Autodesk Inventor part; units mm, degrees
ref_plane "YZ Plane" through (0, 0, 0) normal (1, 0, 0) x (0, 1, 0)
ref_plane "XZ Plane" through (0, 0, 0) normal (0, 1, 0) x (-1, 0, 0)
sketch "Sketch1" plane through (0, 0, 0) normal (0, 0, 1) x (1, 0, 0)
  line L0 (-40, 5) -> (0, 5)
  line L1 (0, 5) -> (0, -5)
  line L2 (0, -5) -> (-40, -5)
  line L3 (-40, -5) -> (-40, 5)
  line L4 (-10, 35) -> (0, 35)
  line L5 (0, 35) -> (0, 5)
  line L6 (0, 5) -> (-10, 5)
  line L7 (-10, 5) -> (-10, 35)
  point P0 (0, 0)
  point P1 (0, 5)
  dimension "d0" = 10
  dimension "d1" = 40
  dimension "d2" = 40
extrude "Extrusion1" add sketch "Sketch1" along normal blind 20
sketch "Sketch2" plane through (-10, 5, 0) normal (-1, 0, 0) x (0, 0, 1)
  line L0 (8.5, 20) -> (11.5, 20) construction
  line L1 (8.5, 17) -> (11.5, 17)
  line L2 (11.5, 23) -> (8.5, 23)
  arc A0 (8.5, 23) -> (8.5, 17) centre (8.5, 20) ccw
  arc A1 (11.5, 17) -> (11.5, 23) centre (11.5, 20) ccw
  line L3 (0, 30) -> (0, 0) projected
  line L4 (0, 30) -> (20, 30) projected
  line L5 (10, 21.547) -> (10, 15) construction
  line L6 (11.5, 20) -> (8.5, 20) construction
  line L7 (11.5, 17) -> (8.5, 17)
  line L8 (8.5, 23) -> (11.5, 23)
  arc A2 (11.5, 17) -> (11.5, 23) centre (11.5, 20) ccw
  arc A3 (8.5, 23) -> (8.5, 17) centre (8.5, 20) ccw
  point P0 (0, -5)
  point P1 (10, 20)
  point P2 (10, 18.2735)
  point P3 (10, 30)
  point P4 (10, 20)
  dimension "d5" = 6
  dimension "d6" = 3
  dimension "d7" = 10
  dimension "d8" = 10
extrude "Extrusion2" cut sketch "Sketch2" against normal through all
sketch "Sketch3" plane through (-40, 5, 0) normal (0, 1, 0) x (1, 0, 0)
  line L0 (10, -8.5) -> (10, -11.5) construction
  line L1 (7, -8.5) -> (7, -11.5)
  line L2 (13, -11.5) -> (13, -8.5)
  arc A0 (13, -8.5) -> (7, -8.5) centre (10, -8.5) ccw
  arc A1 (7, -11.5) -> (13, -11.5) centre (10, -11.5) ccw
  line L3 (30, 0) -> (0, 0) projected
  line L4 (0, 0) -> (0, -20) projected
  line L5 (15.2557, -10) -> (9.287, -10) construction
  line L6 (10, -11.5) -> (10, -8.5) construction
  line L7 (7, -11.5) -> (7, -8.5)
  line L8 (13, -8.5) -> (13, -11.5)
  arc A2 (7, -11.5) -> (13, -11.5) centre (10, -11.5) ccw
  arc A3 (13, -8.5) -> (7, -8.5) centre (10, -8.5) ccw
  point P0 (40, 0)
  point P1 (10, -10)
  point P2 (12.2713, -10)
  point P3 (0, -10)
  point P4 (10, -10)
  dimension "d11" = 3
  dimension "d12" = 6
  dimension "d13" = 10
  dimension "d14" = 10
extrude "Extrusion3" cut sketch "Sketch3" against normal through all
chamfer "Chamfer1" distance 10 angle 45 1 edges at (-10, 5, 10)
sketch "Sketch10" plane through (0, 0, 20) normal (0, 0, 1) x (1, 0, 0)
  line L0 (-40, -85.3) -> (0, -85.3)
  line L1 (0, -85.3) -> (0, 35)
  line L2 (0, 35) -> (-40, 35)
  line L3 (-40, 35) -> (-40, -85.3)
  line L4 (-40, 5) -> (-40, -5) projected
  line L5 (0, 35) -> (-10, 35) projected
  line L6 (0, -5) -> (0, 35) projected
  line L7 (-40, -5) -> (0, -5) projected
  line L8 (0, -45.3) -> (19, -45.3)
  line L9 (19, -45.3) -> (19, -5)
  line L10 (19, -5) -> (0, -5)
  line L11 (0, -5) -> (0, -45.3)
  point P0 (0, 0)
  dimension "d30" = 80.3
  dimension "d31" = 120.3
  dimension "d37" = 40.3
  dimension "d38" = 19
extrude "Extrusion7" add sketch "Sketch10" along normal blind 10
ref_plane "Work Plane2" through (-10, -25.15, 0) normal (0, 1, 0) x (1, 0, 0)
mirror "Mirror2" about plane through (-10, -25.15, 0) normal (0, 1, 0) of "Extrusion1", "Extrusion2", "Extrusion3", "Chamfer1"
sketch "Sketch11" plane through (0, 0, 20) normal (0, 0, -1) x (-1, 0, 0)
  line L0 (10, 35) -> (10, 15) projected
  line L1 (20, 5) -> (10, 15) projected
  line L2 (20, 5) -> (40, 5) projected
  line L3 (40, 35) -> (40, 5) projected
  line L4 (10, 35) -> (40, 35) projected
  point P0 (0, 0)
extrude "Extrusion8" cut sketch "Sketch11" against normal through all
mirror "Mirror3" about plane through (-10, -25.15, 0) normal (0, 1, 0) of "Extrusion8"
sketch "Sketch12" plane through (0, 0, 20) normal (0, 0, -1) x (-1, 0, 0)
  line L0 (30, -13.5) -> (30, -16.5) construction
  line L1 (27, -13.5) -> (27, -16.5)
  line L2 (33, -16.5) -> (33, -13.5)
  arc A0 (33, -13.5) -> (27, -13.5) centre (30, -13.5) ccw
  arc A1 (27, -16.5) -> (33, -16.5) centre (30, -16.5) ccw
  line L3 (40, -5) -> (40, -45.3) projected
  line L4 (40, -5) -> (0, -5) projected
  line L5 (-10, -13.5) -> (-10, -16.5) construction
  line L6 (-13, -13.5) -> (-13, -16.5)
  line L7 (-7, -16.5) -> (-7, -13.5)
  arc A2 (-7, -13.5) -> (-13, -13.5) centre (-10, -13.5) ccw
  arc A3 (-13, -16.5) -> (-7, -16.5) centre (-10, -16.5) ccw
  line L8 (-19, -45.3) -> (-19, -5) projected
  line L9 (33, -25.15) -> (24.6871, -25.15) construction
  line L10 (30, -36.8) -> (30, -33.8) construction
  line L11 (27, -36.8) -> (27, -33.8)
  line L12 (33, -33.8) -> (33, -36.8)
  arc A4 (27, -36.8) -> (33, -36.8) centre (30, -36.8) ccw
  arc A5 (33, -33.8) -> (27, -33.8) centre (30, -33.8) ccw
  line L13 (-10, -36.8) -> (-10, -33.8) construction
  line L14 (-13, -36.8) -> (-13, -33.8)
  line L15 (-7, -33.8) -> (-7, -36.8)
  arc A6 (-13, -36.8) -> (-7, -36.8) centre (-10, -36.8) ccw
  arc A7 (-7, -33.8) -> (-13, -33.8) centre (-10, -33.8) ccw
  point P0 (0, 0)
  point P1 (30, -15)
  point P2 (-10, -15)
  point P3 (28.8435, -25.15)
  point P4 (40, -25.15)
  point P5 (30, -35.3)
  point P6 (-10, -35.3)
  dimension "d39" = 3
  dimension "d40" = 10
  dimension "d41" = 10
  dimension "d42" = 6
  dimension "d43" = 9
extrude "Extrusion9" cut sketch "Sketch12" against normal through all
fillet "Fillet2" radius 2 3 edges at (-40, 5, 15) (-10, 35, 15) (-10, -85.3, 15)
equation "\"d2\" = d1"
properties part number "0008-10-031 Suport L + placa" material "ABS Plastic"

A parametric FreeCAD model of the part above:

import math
import FreeCAD as App
import Part
import Sketcher


def edges_at(feature, points):
    """Names of the edges that pass closest to the given points."""
    edges = feature.Shape.Edges
    near = lambda p: min(range(len(edges)), key=lambda i: edges[i].distToShape(Part.Vertex(*p))[0])
    return sorted({f"Edge{near(p) + 1}" for p in points})


def add_polygon(sketch, points):
    """Adds a closed chain of lines whose ends are joined by coincident constraints."""
    first, n = sketch.GeometryCount, len(points)
    for a, b in zip(points, points[1:] + points[:1]):
        sketch.addGeometry(Part.LineSegment(App.Vector(*a, 0), App.Vector(*b, 0)), False)
    for i in range(n):
        sketch.addConstraint(Sketcher.Constraint("Coincident", first + i, 2, first + (i + 1) % n, 1))

doc = App.newDocument("Part")
body = doc.addObject("PartDesign::Body", "Body")

sketch1 = doc.addObject("Sketcher::SketchObject", "Sketch")
body.addObject(sketch1)
sketch1.AttachmentSupport = (doc.XY_Plane, [""])
sketch1.MapMode = "FlatFace"
add_polygon(sketch1, [(-10, 5), (-40, 5), (-40, -5), (0, -5), (0, 35), (-10, 35)])
sketch1.addConstraint(Sketcher.Constraint("Horizontal", 0))
sketch1.addConstraint(Sketcher.Constraint("Vertical", 1))
sketch1.addConstraint(Sketcher.Constraint("Horizontal", 2))
sketch1.addConstraint(Sketcher.Constraint("Vertical", 3))
sketch1.addConstraint(Sketcher.Constraint("Horizontal", 4))
sketch1.addConstraint(Sketcher.Constraint("Vertical", 5))
sketch1.addConstraint(Sketcher.Constraint("PointOnObject", 2, 2, -2))
sketch1.addConstraint(Sketcher.Constraint("Equal", 4, 1))
sketch1.addConstraint(Sketcher.Constraint("Equal", 2, 3))
sketch1.addConstraint(Sketcher.Constraint("DistanceX", 2, 1, 2, 2, 40.0))
sketch1.addConstraint(Sketcher.Constraint("DistanceX", 4, 2, 4, 1, 10.0))
sketch1.addConstraint(Sketcher.Constraint("DistanceY", -1, 1, 0, 2, 5.0))
pad1 = doc.addObject("PartDesign::Pad", "Pad")
body.addObject(pad1)
pad1.Profile = sketch1
pad1.Length = 20

sketch2 = doc.addObject("Sketcher::SketchObject", "Sketch001")
body.addObject(sketch2)
sketch2.AttachmentSupport = (doc.YZ_Plane, [""])
sketch2.MapMode = "FlatFace"
sketch2.AttachmentOffset = App.Placement(App.Vector(0, 0, -10), App.Rotation())
sketch2.addGeometry(Part.ArcOfCircle(Part.Circle(App.Vector(25, 8.5, 0), App.Vector(0, 0, 1), 3), math.radians(180), math.radians(360)), False)
sketch2.addGeometry(Part.LineSegment(App.Vector(22, 8.5, 0), App.Vector(22, 11.5, 0)), False)
sketch2.addGeometry(Part.ArcOfCircle(Part.Circle(App.Vector(25, 11.5, 0), App.Vector(0, 0, 1), 3), math.radians(0), math.radians(180)), False)
sketch2.addGeometry(Part.LineSegment(App.Vector(28, 11.5, 0), App.Vector(28, 8.5, 0)), False)
sketch2.addConstraint(Sketcher.Constraint("Tangent", 0, 1, 1, 1))
sketch2.addConstraint(Sketcher.Constraint("Tangent", 1, 2, 2, 2))
sketch2.addConstraint(Sketcher.Constraint("Tangent", 2, 1, 3, 1))
sketch2.addConstraint(Sketcher.Constraint("Tangent", 3, 2, 0, 2))
sketch2.addConstraint(Sketcher.Constraint("Vertical", 1))
sketch2.addConstraint(Sketcher.Constraint("Vertical", 3))
sketch2.addConstraint(Sketcher.Constraint("Radius", 0, 3.0))
sketch2.addConstraint(Sketcher.Constraint("DistanceY", 1, 1, 1, 2, 3.0))
sketch2.addConstraint(Sketcher.Constraint("DistanceX", -1, 1, 0, 3, 25.0))
sketch2.addConstraint(Sketcher.Constraint("DistanceY", -1, 1, 0, 3, 8.5))
pocket1 = doc.addObject("PartDesign::Pocket", "Pocket")
body.addObject(pocket1)
pocket1.Profile = sketch2
pocket1.Type = "ThroughAll"
pocket1.Reversed = True

sketch3 = doc.addObject("Sketcher::SketchObject", "Sketch002")
body.addObject(sketch3)
sketch3.AttachmentSupport = (doc.XZ_Plane, [""])
sketch3.MapMode = "FlatFace"
sketch3.AttachmentOffset = App.Placement(App.Vector(0, 0, -5), App.Rotation())
sketch3.addGeometry(Part.ArcOfCircle(Part.Circle(App.Vector(-30, 8.5, 0), App.Vector(0, 0, 1), 3), math.radians(180), math.radians(360)), False)
sketch3.addGeometry(Part.LineSegment(App.Vector(-33, 8.5, 0), App.Vector(-33, 11.5, 0)), False)
sketch3.addGeometry(Part.ArcOfCircle(Part.Circle(App.Vector(-30, 11.5, 0), App.Vector(0, 0, 1), 3), math.radians(0), math.radians(180)), False)
sketch3.addGeometry(Part.LineSegment(App.Vector(-27, 11.5, 0), App.Vector(-27, 8.5, 0)), False)
sketch3.addConstraint(Sketcher.Constraint("Tangent", 0, 1, 1, 1))
sketch3.addConstraint(Sketcher.Constraint("Tangent", 1, 2, 2, 2))
sketch3.addConstraint(Sketcher.Constraint("Tangent", 2, 1, 3, 1))
sketch3.addConstraint(Sketcher.Constraint("Tangent", 3, 2, 0, 2))
sketch3.addConstraint(Sketcher.Constraint("Vertical", 1))
sketch3.addConstraint(Sketcher.Constraint("Vertical", 3))
sketch3.addConstraint(Sketcher.Constraint("Radius", 0, 3.0))
sketch3.addConstraint(Sketcher.Constraint("DistanceY", 1, 1, 1, 2, 3.0))
sketch3.addConstraint(Sketcher.Constraint("DistanceX", 0, 3, -1, 1, 30.0))
sketch3.addConstraint(Sketcher.Constraint("DistanceY", -1, 1, 0, 3, 8.5))
pocket2 = doc.addObject("PartDesign::Pocket", "Pocket001")
body.addObject(pocket2)
pocket2.Profile = sketch3
pocket2.Type = "ThroughAll"
pocket2.Reversed = True
doc.recompute()

chamfer = doc.addObject("PartDesign::Chamfer", "Chamfer")
body.addObject(chamfer)
chamfer.Base = (pocket2, edges_at(pocket2, [(-10, 5, 10)]))
chamfer.Size = 10

sketch4 = doc.addObject("Sketcher::SketchObject", "Sketch003")
body.addObject(sketch4)
sketch4.AttachmentSupport = (doc.XY_Plane, [""])
sketch4.MapMode = "FlatFace"
sketch4.AttachmentOffset = App.Placement(App.Vector(0, 0, 20), App.Rotation())
add_polygon(sketch4, [(-40, -85), (0, -85), (0, -45), (19, -45), (19, -5), (0, -5), (0, 35), (-40, 35)])
sketch4.addConstraint(Sketcher.Constraint("Horizontal", 0))
sketch4.addConstraint(Sketcher.Constraint("Vertical", 1))
sketch4.addConstraint(Sketcher.Constraint("Horizontal", 2))
sketch4.addConstraint(Sketcher.Constraint("Vertical", 3))
sketch4.addConstraint(Sketcher.Constraint("Horizontal", 4))
sketch4.addConstraint(Sketcher.Constraint("Vertical", 5))
sketch4.addConstraint(Sketcher.Constraint("Horizontal", 6))
sketch4.addConstraint(Sketcher.Constraint("Vertical", 7))
sketch4.addConstraint(Sketcher.Constraint("PointOnObject", 0, 2, -2))
sketch4.addConstraint(Sketcher.Constraint("PointOnObject", 4, 2, -2))
sketch4.addConstraint(Sketcher.Constraint("Equal", 6, 1))
sketch4.addConstraint(Sketcher.Constraint("Equal", 1, 5))
sketch4.addConstraint(Sketcher.Constraint("DistanceX", 2, 1, 2, 2, 19.0))
sketch4.addConstraint(Sketcher.Constraint("DistanceY", 3, 1, 3, 2, 40.3))
sketch4.addConstraint(Sketcher.Constraint("DistanceY", 7, 2, 7, 1, 120.3))
sketch4.addConstraint(Sketcher.Constraint("DistanceY", 3, 2, -1, 1, 5.0))
pad2 = doc.addObject("PartDesign::Pad", "Pad001")
body.addObject(pad2)
pad2.Profile = sketch4
pad2.Length = 10
doc.recompute()

datumplane = doc.addObject("PartDesign::Plane", "DatumPlane")
body.addObject(datumplane)
datumplane.AttachmentSupport = (doc.XZ_Plane, [""])
datumplane.MapMode = "FlatFace"
datumplane.AttachmentOffset = App.Placement(App.Vector(0, 0, 25.15), App.Rotation())
mirrored = doc.addObject("PartDesign::Mirrored", "Mirrored")
body.addObject(mirrored)
mirrored.Originals = [pad1, pocket1, pocket2, chamfer]
mirrored.MirrorPlane = (datumplane, [""])
body.Tip = mirrored

sketch5 = doc.addObject("Sketcher::SketchObject", "Sketch004")
body.addObject(sketch5)
sketch5.AttachmentSupport = (doc.XY_Plane, [""])
sketch5.MapMode = "FlatFace"
sketch5.AttachmentOffset = App.Placement(App.Vector(0, 0, 20), App.Rotation())
add_polygon(sketch5, [(-40, 35), (-10, 35), (-10, 15), (-20, 5), (-40, 5)])
sketch5.addConstraint(Sketcher.Constraint("Horizontal", 0))
sketch5.addConstraint(Sketcher.Constraint("Vertical", 1))
sketch5.addConstraint(Sketcher.Constraint("Horizontal", 3))
sketch5.addConstraint(Sketcher.Constraint("Vertical", 4))
sketch5.addConstraint(Sketcher.Constraint("Equal", 3, 1))
sketch5.addConstraint(Sketcher.Constraint("Equal", 0, 4))
sketch5.addConstraint(Sketcher.Constraint("DistanceX", 0, 1, 0, 2, 30.0))
sketch5.addConstraint(Sketcher.Constraint("DistanceX", 3, 2, 3, 1, 20.0))
sketch5.addConstraint(Sketcher.Constraint("DistanceX", 0, 2, -1, 1, 10.0))
sketch5.addConstraint(Sketcher.Constraint("DistanceY", -1, 1, 0, 2, 35.0))
pocket3 = doc.addObject("PartDesign::Pocket", "Pocket002")
body.addObject(pocket3)
pocket3.Profile = sketch5
pocket3.Type = "ThroughAll"
pocket3.Reversed = True
doc.recompute()

datumplane2 = doc.addObject("PartDesign::Plane", "DatumPlane001")
body.addObject(datumplane2)
datumplane2.AttachmentSupport = (doc.XZ_Plane, [""])
datumplane2.MapMode = "FlatFace"
datumplane2.AttachmentOffset = App.Placement(App.Vector(0, 0, 25.15), App.Rotation())
mirrored2 = doc.addObject("PartDesign::Mirrored", "Mirrored001")
body.addObject(mirrored2)
mirrored2.Originals = [pocket3]
mirrored2.MirrorPlane = (datumplane2, [""])
body.Tip = mirrored2

sketch6 = doc.addObject("Sketcher::SketchObject", "Sketch005")
body.addObject(sketch6)
sketch6.AttachmentSupport = (doc.XY_Plane, [""])
sketch6.MapMode = "FlatFace"
sketch6.AttachmentOffset = App.Placement(App.Vector(0, 0, 20), App.Rotation())
sketch6.addGeometry(Part.ArcOfCircle(Part.Circle(App.Vector(-30, -13.5, 0), App.Vector(0, 0, 1), 3), math.radians(0), math.radians(180)), False)
sketch6.addGeometry(Part.LineSegment(App.Vector(-27, -13.5, 0), App.Vector(-27, -16.5, 0)), False)
sketch6.addGeometry(Part.ArcOfCircle(Part.Circle(App.Vector(-30, -16.5, 0), App.Vector(0, 0, 1), 3), math.radians(180), math.radians(360)), False)
sketch6.addGeometry(Part.LineSegment(App.Vector(-33, -16.5, 0), App.Vector(-33, -13.5, 0)), False)
sketch6.addGeometry(Part.ArcOfCircle(Part.Circle(App.Vector(10, -13.5, 0), App.Vector(0, 0, 1), 3), math.radians(0), math.radians(180)), False)
sketch6.addGeometry(Part.LineSegment(App.Vector(13, -13.5, 0), App.Vector(13, -16.5, 0)), False)
sketch6.addGeometry(Part.ArcOfCircle(Part.Circle(App.Vector(10, -16.5, 0), App.Vector(0, 0, 1), 3), math.radians(180), math.radians(360)), False)
sketch6.addGeometry(Part.LineSegment(App.Vector(7, -16.5, 0), App.Vector(7, -13.5, 0)), False)
sketch6.addGeometry(Part.LineSegment(App.Vector(-27, -33.8, 0), App.Vector(-27, -36.8, 0)), False)
sketch6.addGeometry(Part.ArcOfCircle(Part.Circle(App.Vector(-30, -36.8, 0), App.Vector(0, 0, 1), 3), math.radians(180), math.radians(360)), False)
sketch6.addGeometry(Part.LineSegment(App.Vector(-33, -36.8, 0), App.Vector(-33, -33.8, 0)), False)
sketch6.addGeometry(Part.ArcOfCircle(Part.Circle(App.Vector(-30, -33.8, 0), App.Vector(0, 0, 1), 3), math.radians(0), math.radians(180)), False)
sketch6.addGeometry(Part.LineSegment(App.Vector(13, -33.8, 0), App.Vector(13, -36.8, 0)), False)
sketch6.addGeometry(Part.ArcOfCircle(Part.Circle(App.Vector(10, -36.8, 0), App.Vector(0, 0, 1), 3), math.radians(180), math.radians(360)), False)
sketch6.addGeometry(Part.LineSegment(App.Vector(7, -36.8, 0), App.Vector(7, -33.8, 0)), False)
sketch6.addGeometry(Part.ArcOfCircle(Part.Circle(App.Vector(10, -33.8, 0), App.Vector(0, 0, 1), 3), math.radians(0), math.radians(180)), False)
sketch6.addConstraint(Sketcher.Constraint("Tangent", 0, 1, 1, 1))
sketch6.addConstraint(Sketcher.Constraint("Tangent", 1, 2, 2, 2))
sketch6.addConstraint(Sketcher.Constraint("Tangent", 2, 1, 3, 1))
sketch6.addConstraint(Sketcher.Constraint("Tangent", 3, 2, 0, 2))
sketch6.addConstraint(Sketcher.Constraint("Tangent", 4, 1, 5, 1))
sketch6.addConstraint(Sketcher.Constraint("Tangent", 5, 2, 6, 2))
sketch6.addConstraint(Sketcher.Constraint("Tangent", 6, 1, 7, 1))
sketch6.addConstraint(Sketcher.Constraint("Tangent", 7, 2, 4, 2))
sketch6.addConstraint(Sketcher.Constraint("Tangent", 8, 2, 9, 2))
sketch6.addConstraint(Sketcher.Constraint("Tangent", 9, 1, 10, 1))
sketch6.addConstraint(Sketcher.Constraint("Tangent", 10, 2, 11, 2))
sketch6.addConstraint(Sketcher.Constraint("Tangent", 11, 1, 8, 1))
sketch6.addConstraint(Sketcher.Constraint("Tangent", 12, 2, 13, 2))
sketch6.addConstraint(Sketcher.Constraint("Tangent", 13, 1, 14, 1))
sketch6.addConstraint(Sketcher.Constraint("Tangent", 14, 2, 15, 2))
sketch6.addConstraint(Sketcher.Constraint("Tangent", 15, 1, 12, 1))
sketch6.addConstraint(Sketcher.Constraint("Vertical", 1))
sketch6.addConstraint(Sketcher.Constraint("Vertical", 3))
sketch6.addConstraint(Sketcher.Constraint("Vertical", 5))
sketch6.addConstraint(Sketcher.Constraint("Vertical", 7))
sketch6.addConstraint(Sketcher.Constraint("Vertical", 8))
sketch6.addConstraint(Sketcher.Constraint("Vertical", 10))
sketch6.addConstraint(Sketcher.Constraint("Vertical", 12))
sketch6.addConstraint(Sketcher.Constraint("Vertical", 14))
sketch6.addConstraint(Sketcher.Constraint("Equal", 2, 4))
sketch6.addConstraint(Sketcher.Constraint("Equal", 6, 9))
sketch6.addConstraint(Sketcher.Constraint("Equal", 11, 13))
sketch6.addConstraint(Sketcher.Constraint("Horizontal", 0, 3, 4, 3))
sketch6.addConstraint(Sketcher.Constraint("Horizontal", 2, 3, 6, 3))
sketch6.addConstraint(Sketcher.Constraint("Horizontal", 9, 3, 13, 3))
sketch6.addConstraint(Sketcher.Constraint("Horizontal", 11, 3, 15, 3))
sketch6.addConstraint(Sketcher.Constraint("Vertical", 2, 3, 9, 3))
sketch6.addConstraint(Sketcher.Constraint("Vertical", 6, 3, 13, 3))
sketch6.addConstraint(Sketcher.Constraint("Equal", 7, 8))
sketch6.addConstraint(Sketcher.Constraint("Radius", 0, 3.0))
sketch6.addConstraint(Sketcher.Constraint("DistanceY", 1, 2, 1, 1, 3.0))
sketch6.addConstraint(Sketcher.Constraint("DistanceX", -1, 1, 4, 3, 10.0))
sketch6.addConstraint(Sketcher.Constraint("DistanceX", 0, 3, -1, 1, 30.0))
sketch6.addConstraint(Sketcher.Constraint("DistanceY", 0, 3, -1, 1, 13.5))
sketch6.addConstraint(Sketcher.Constraint("DistanceY", 9, 3, -1, 1, 36.8))
pocket4 = doc.addObject("PartDesign::Pocket", "Pocket003")
body.addObject(pocket4)
pocket4.Profile = sketch6
pocket4.Type = "ThroughAll"
pocket4.Reversed = True
doc.recompute()

fillet = doc.addObject("PartDesign::Fillet", "Fillet")
body.addObject(fillet)
fillet.Base = (pocket4, edges_at(pocket4, [(-40, 5, 15), (-10, 35, 15), (-10, -85.3, 15)]))
fillet.Radius = 2

doc.recompute()
